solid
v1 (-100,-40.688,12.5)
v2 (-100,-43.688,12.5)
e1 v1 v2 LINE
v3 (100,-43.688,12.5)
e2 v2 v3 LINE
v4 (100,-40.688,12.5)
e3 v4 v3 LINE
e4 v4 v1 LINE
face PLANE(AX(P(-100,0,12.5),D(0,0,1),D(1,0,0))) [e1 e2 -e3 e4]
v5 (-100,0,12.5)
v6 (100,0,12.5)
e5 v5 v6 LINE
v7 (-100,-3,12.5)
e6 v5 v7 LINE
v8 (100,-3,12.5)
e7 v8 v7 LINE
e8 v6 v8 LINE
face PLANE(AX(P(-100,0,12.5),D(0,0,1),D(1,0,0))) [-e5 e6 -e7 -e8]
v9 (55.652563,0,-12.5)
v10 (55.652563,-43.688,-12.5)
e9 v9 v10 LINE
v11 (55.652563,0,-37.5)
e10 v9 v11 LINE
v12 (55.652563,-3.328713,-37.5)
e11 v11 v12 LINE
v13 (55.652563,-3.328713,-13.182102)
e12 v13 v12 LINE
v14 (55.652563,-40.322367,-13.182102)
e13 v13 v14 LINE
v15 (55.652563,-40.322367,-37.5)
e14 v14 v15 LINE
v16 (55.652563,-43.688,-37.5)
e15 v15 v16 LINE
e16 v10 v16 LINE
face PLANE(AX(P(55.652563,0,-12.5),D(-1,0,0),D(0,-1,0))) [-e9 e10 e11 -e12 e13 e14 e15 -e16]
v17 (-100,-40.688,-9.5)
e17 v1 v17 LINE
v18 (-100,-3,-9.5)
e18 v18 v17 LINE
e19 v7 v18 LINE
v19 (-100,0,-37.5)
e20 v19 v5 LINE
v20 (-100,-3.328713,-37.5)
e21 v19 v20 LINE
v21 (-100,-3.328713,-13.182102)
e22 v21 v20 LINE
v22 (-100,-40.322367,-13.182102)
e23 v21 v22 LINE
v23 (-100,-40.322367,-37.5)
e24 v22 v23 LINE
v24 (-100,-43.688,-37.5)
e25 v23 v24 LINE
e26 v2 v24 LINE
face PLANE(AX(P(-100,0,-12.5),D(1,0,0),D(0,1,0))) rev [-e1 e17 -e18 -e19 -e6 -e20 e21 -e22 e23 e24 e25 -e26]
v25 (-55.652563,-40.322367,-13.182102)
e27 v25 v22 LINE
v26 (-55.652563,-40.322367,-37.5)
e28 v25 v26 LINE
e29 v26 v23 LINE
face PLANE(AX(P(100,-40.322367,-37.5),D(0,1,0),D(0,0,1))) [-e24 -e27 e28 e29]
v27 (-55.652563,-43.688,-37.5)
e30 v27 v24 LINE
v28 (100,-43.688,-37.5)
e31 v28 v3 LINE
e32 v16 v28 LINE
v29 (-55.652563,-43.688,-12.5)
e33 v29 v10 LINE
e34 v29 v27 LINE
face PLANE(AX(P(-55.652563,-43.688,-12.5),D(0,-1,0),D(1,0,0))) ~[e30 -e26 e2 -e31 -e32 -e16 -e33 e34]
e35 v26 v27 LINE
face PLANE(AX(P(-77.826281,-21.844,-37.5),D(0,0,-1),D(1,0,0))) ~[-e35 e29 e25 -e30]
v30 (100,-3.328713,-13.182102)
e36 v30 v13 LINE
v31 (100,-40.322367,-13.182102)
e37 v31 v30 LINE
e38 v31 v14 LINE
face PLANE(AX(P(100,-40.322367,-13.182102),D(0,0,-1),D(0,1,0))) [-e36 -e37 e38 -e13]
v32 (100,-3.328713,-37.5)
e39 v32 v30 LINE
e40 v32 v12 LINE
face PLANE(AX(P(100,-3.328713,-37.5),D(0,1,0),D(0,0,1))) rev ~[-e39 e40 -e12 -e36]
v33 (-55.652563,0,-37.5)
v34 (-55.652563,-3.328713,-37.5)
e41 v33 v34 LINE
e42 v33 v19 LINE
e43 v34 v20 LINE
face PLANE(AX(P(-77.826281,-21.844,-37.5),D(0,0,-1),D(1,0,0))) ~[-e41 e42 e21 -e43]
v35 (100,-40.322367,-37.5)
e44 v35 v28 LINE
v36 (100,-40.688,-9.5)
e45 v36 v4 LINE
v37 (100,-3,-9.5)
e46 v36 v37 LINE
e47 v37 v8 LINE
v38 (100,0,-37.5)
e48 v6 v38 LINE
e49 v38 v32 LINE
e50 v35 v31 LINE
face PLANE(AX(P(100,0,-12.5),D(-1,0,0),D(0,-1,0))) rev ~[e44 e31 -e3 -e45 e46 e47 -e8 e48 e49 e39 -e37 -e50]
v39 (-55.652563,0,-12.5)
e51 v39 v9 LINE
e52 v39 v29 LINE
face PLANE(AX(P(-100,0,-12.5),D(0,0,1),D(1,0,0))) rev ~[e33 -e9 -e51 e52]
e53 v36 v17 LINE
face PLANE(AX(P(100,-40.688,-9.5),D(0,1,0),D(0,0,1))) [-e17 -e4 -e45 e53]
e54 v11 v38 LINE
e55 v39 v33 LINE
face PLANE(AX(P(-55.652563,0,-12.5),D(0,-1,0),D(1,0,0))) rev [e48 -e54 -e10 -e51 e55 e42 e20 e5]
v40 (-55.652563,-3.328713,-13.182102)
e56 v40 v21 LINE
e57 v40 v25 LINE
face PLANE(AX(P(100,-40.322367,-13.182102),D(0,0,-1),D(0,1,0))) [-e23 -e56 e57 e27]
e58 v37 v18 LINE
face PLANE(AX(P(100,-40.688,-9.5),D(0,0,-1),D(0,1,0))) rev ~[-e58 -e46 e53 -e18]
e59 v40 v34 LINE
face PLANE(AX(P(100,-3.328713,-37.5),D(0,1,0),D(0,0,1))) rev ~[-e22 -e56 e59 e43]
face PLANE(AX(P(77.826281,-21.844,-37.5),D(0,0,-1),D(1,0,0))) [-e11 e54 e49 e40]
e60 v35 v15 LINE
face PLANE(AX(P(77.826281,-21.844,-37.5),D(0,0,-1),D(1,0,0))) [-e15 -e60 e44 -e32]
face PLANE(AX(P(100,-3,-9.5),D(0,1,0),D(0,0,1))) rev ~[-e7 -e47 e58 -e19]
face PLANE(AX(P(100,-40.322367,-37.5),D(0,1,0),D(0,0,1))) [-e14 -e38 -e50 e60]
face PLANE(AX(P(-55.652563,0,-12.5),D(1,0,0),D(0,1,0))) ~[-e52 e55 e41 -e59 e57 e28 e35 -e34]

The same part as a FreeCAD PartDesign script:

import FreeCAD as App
import Part
import Sketcher

doc = App.newDocument("Part")
params = doc.addObject("Spreadsheet::Sheet", "Params")
for row, (alias, value) in enumerate([
    ("sketch1_width", "200 mm"),
    ("sketch1_height", "25 mm"),
    ("pad1_length", "43.688 mm"),
    ("sketch2_height", "22 mm"),
    ("pad2_length", "25 mm"),
], start=1):
    params.set(f"A{row}", alias)
    params.set(f"B{row}", "=" + value)
    params.setAlias(f"B{row}", alias)

body = doc.addObject("PartDesign::Body", "Body")

# Sketch on XZ plane
sketch1 = doc.addObject("Sketcher::SketchObject", "Sketch")
body.addObject(sketch1)
sketch1.AttachmentSupport = (doc.XZ_Plane, [""])
sketch1.MapMode = "FlatFace"
sketch1.addGeometry([
    Part.LineSegment(App.Vector(-100, 12, 0), App.Vector(-100, -12, 0)),
    Part.LineSegment(App.Vector(-100, -12, 0), App.Vector(100, -12, 0)),
    Part.LineSegment(App.Vector(100, -12, 0), App.Vector(100, 12, 0)),
    Part.LineSegment(App.Vector(100, 12, 0), App.Vector(-100, 12, 0)),
], False)
sketch1.addConstraint([
    Sketcher.Constraint("Coincident", 0, 2, 1, 1),
    Sketcher.Constraint("Coincident", 1, 2, 2, 1),
    Sketcher.Constraint("Coincident", 2, 2, 3, 1),
    Sketcher.Constraint("Coincident", 3, 2, 0, 1),
    Sketcher.Constraint("Vertical", 0),
    Sketcher.Constraint("Horizontal", 1),
    Sketcher.Constraint("Vertical", 2),
    Sketcher.Constraint("Horizontal", 3),
    Sketcher.Constraint("Symmetric", 0, 2, 2, 2, -1, 1),
    Sketcher.Constraint("DistanceX", 1, 1, 1, 2, 200.0),
    Sketcher.Constraint("DistanceY", 0, 2, 0, 1, 25.0),
])
sketch1.setExpression("Constraints[9]", "Params.sketch1_width")
sketch1.setExpression("Constraints[10]", "Params.sketch1_height")
pad1 = doc.addObject("PartDesign::Pad", "Pad")
body.addObject(pad1)
pad1.Profile = sketch1
pad1.setExpression("Length", "Params.pad1_length")

# Sketch on YZ plane
sketch2 = doc.addObject("Sketcher::SketchObject", "Sketch001")
body.addObject(sketch2)
sketch2.AttachmentSupport = (doc.YZ_Plane, [""])
sketch2.MapMode = "FlatFace"
sketch2.AttachmentOffset = App.Placement(App.Vector(0, 0, 100), App.Rotation())
sketch2.addGeometry([
    Part.LineSegment(App.Vector(-41, 12, 0), App.Vector(-41, -10, 0)),
    Part.LineSegment(App.Vector(-41, -10, 0), App.Vector(-3, -10, 0)),
    Part.LineSegment(App.Vector(-3, -10, 0), App.Vector(-3, 12, 0)),
    Part.LineSegment(App.Vector(-3, 12, 0), App.Vector(-41, 12, 0)),
], False)
sketch2.addConstraint([
    Sketcher.Constraint("Coincident", 0, 2, 1, 1),
    Sketcher.Constraint("Coincident", 1, 2, 2, 1),
    Sketcher.Constraint("Coincident", 2, 2, 3, 1),
    Sketcher.Constraint("Coincident", 3, 2, 0, 1),
    Sketcher.Constraint("Vertical", 0),
    Sketcher.Constraint("Horizontal", 1),
    Sketcher.Constraint("Vertical", 2),
    Sketcher.Constraint("Horizontal", 3),
    Sketcher.Constraint("DistanceY", 0, 2, 0, 1, 22.0),
    Sketcher.Constraint("DistanceX", 1, 2, -1, 1, 3.0),
    Sketcher.Constraint("DistanceY", 0, 2, -1, 1, 9.5),
    Sketcher.Constraint("DistanceX", 1, 1, 1, 2, 37.688),
])
sketch2.setExpression("Constraints[8]", "Params.sketch2_height")
pocket1 = doc.addObject("PartDesign::Pocket", "Pocket")
body.addObject(pocket1)
pocket1.Profile = sketch2
pocket1.Type = "ThroughAll"

# Sketch on XY plane
sketch3 = doc.addObject("Sketcher::SketchObject", "Sketch002")
body.addObject(sketch3)
sketch3.AttachmentSupport = (doc.XY_Plane, [""])
sketch3.MapMode = "FlatFace"
sketch3.AttachmentOffset = App.Placement(App.Vector(0, 0, -12.5), App.Rotation())
sketch3.addGeometry([
    Part.LineSegment(App.Vector(56, -44, 0), App.Vector(56, 0, 0)),
    Part.LineSegment(App.Vector(56, 0, 0), App.Vector(100, 0, 0)),
    Part.LineSegment(App.Vector(100, 0, 0), App.Vector(100, -44, 0)),
    Part.LineSegment(App.Vector(100, -44, 0), App.Vector(56, -44, 0)),
], False)
sketch3.addConstraint([
    Sketcher.Constraint("Coincident", 0, 2, 1, 1),
    Sketcher.Constraint("Coincident", 1, 2, 2, 1),
    Sketcher.Constraint("Coincident", 2, 2, 3, 1),
    Sketcher.Constraint("Coincident", 3, 2, 0, 1),
    Sketcher.Constraint("Vertical", 0),
    Sketcher.Constraint("Horizontal", 1),
    Sketcher.Constraint("Vertical", 2),
    Sketcher.Constraint("Horizontal", 3),
    Sketcher.Constraint("PointOnObject", 0, 2, -1),
    Sketcher.Constraint("DistanceX", -1, 1, 1, 2, 100.0),
    Sketcher.Constraint("DistanceY", 0, 1, 0, 2, 43.688),
    Sketcher.Constraint("DistanceX", 1, 1, 1, 2, 44.347437),
])
pad2 = doc.addObject("PartDesign::Pad", "Pad001")
body.addObject(pad2)
pad2.Profile = sketch3
pad2.setExpression("Length", "Params.pad2_length")
pad2.Reversed = True
body2 = doc.addObject("PartDesign::Body", "Body001")
doc.recompute()

body2.BaseFeature = body
doc.recompute()

mirroring = doc.addObject("Part::Mirroring", "Mirroring")
mirroring.Source = body
mirroring.Base = App.Vector(0, 0, 0)
mirroring.Normal = App.Vector(1, 0, 0)
body3 = doc.addObject("PartDesign::Body", "Body002")
body3.BaseFeature = mirroring
boolean = doc.addObject("PartDesign::Boolean", "Boolean")
body2.addObject(boolean)
boolean.Type = "Fuse"
boolean.addObjects([body3])
doc.recompute()

# Sketch on YZ plane
sketch4 = doc.addObject("Sketcher::SketchObject", "Sketch003")
body2.addObject(sketch4)
sketch4.AttachmentSupport = (doc.getObject("YZ_Plane001"), [""])
sketch4.MapMode = "FlatFace"
sketch4.AttachmentOffset = App.Placement(App.Vector(0, 0, 100), App.Rotation())
sketch4.addGeometry([
    Part.LineSegment(App.Vector(-40, -13, 0), App.Vector(-40, -38, 0)),
    Part.LineSegment(App.Vector(-40, -38, 0), App.Vector(-3, -38, 0)),
    Part.LineSegment(App.Vector(-3, -38, 0), App.Vector(-3, -13, 0)),
    Part.LineSegment(App.Vector(-3, -13, 0), App.Vector(-40, -13, 0)),
], False)
sketch4.addConstraint([
    Sketcher.Constraint("Coincident", 0, 2, 1, 1),
    Sketcher.Constraint("Coincident", 1, 2, 2, 1),
    Sketcher.Constraint("Coincident", 2, 2, 3, 1),
    Sketcher.Constraint("Coincident", 3, 2, 0, 1),
    Sketcher.Constraint("Vertical", 0),
    Sketcher.Constraint("Horizontal", 1),
    Sketcher.Constraint("Vertical", 2),
    Sketcher.Constraint("Horizontal", 3),
    Sketcher.Constraint("DistanceY", 0, 2, -1, 1, 37.5),
    Sketcher.Constraint("DistanceY", 0, 2, 0, 1, 24.317898),
    Sketcher.Constraint("DistanceX", 1, 1, 1, 2, 36.993654),
    Sketcher.Constraint("DistanceX", 0, 2, -1, 1, 40.322367),
])
pocket2 = doc.addObject("PartDesign::Pocket", "Pocket001")
body2.addObject(pocket2)
pocket2.Profile = sketch4
pocket2.Type = "ThroughAll"
mirroring.Visibility = False

doc.recompute()
